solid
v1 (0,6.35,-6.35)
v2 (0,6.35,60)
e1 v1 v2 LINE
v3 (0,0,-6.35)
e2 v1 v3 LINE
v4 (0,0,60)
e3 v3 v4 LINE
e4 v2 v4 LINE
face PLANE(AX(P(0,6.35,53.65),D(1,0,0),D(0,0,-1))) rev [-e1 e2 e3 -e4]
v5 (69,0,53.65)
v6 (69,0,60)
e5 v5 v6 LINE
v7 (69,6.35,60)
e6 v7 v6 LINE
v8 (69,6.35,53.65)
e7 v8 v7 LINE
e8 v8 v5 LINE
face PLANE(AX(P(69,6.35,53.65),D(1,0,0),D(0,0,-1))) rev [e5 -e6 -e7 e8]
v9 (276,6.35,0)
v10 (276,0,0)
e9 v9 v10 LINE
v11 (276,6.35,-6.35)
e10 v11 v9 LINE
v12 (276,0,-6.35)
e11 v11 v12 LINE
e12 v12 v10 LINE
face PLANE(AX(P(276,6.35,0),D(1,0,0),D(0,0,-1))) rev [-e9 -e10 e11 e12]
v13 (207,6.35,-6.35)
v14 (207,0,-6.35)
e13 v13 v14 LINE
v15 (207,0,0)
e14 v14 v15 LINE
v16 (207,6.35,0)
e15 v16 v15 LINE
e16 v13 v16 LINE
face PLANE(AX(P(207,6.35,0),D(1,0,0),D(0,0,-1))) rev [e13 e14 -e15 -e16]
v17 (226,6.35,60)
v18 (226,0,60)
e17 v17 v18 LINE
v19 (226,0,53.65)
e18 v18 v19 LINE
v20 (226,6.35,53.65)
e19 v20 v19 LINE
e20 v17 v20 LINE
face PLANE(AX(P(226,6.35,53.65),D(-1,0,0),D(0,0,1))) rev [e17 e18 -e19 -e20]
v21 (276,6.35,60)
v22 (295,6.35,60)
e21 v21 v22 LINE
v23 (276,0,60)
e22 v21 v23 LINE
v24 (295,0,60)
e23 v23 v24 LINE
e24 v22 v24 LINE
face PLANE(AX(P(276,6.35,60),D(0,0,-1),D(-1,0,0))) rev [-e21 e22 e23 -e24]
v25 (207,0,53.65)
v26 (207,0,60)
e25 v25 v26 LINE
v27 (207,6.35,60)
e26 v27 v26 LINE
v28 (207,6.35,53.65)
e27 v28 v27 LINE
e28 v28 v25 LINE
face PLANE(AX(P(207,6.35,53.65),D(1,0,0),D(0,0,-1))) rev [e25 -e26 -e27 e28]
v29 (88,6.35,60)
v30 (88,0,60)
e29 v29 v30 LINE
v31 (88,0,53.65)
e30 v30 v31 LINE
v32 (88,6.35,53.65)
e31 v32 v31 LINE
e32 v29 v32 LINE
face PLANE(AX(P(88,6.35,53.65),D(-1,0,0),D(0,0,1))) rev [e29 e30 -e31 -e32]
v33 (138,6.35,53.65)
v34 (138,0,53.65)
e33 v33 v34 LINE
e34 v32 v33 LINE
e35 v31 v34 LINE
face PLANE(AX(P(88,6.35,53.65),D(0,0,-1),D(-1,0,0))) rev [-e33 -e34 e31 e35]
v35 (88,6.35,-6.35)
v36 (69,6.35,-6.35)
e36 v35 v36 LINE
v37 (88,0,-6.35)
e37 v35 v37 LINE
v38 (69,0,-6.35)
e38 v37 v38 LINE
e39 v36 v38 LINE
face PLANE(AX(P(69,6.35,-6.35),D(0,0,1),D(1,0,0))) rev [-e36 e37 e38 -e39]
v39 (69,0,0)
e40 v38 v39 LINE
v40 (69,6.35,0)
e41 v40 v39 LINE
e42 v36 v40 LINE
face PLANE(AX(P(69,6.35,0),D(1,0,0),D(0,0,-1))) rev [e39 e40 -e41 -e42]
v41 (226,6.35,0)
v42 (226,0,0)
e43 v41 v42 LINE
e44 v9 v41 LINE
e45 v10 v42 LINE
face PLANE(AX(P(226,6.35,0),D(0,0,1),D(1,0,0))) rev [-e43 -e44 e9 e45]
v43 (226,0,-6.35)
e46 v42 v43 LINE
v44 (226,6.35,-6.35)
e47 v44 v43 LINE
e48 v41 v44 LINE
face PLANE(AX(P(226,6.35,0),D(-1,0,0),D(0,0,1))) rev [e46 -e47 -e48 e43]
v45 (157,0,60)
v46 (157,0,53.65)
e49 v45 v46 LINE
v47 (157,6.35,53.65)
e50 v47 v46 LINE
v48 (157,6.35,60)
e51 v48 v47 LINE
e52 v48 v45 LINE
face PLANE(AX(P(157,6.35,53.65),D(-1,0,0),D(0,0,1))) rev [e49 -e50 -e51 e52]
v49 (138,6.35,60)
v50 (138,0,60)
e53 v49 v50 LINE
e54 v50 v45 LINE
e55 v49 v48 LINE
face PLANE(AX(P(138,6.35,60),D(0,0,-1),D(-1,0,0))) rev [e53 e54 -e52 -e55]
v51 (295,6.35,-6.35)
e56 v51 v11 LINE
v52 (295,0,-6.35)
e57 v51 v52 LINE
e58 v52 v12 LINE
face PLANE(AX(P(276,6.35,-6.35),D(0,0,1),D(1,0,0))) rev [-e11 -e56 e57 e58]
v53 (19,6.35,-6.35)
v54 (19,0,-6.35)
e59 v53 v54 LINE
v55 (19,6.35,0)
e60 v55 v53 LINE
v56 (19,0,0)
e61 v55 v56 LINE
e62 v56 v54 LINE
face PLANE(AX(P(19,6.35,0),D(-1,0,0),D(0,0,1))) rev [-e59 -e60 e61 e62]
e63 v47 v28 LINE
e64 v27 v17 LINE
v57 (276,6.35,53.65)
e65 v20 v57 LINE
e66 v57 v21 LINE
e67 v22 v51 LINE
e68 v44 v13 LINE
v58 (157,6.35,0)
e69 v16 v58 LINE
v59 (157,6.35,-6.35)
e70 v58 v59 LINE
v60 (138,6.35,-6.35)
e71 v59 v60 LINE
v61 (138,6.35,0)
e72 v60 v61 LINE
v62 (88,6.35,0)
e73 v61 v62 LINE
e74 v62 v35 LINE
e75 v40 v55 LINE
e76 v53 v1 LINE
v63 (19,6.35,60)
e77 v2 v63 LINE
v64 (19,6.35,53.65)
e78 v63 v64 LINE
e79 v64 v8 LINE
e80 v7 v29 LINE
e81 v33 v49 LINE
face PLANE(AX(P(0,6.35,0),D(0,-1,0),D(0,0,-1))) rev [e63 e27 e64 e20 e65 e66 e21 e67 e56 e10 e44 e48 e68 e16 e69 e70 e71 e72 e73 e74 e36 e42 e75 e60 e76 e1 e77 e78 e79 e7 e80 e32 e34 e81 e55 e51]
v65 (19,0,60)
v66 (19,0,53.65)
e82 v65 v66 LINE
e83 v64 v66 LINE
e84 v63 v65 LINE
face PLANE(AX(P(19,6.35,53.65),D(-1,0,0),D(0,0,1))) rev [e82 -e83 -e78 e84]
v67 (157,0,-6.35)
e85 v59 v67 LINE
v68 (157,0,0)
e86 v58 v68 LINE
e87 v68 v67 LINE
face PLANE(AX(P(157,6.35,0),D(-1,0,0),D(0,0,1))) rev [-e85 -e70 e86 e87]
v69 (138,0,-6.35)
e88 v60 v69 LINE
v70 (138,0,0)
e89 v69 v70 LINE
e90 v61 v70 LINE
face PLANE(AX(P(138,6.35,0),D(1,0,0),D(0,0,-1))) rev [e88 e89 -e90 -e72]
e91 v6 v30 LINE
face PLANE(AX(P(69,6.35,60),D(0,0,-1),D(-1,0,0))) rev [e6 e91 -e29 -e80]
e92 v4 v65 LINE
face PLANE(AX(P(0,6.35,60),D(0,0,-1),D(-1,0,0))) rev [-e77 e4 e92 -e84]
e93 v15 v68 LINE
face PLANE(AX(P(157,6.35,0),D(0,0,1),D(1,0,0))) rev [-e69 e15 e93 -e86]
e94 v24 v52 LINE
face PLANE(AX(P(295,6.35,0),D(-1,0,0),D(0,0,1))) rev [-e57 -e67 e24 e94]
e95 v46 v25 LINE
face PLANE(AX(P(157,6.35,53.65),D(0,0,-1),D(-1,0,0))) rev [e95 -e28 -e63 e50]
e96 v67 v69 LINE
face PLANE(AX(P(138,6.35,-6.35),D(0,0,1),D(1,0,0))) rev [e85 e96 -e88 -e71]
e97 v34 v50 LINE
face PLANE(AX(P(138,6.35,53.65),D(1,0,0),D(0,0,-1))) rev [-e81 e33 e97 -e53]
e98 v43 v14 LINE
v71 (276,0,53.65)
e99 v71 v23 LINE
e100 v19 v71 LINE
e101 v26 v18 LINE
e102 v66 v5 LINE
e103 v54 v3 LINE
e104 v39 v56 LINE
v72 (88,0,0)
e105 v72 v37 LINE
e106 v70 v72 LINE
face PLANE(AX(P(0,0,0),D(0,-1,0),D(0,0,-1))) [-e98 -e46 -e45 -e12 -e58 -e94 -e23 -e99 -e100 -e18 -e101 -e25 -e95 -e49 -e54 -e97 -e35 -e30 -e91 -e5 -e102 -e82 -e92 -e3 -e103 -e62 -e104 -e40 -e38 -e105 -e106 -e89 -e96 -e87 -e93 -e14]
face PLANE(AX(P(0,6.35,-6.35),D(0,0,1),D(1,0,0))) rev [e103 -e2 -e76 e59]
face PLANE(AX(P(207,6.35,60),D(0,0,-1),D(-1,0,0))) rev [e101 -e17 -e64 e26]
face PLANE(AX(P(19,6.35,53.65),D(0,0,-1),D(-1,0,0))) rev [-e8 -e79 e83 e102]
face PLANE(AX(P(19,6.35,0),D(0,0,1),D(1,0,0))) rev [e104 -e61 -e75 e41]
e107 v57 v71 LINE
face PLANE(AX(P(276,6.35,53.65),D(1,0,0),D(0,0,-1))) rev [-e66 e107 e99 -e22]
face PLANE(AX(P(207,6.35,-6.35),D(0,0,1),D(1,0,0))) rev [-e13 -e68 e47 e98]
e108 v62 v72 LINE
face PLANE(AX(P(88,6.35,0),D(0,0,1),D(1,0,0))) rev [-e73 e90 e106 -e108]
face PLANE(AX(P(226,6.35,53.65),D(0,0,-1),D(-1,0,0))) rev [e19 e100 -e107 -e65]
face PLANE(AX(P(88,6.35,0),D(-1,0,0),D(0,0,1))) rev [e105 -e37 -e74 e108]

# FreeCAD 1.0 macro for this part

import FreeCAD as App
import Part
import Sketcher

V = App.Vector

doc = App.newDocument("Part")
body = doc.addObject("PartDesign::Body", "Body")

# Sketch on XZ plane
sketch1 = body.newObject("Sketcher::SketchObject", "Sketch")
sketch1.AttachmentSupport = (doc.getObject("XZ_Plane"), [""])
sketch1.MapMode = "FlatFace"
sketch1.addGeometry([
    Part.LineSegment(V(69, 54, 0), V(69, 60, 0)),  # 0
    Part.LineSegment(V(69, 60, 0), V(88, 60, 0)),  # 1
    Part.LineSegment(V(88, 60, 0), V(88, 54, 0)),  # 2
    Part.LineSegment(V(88, 54, 0), V(138, 54, 0)),  # 3
    Part.LineSegment(V(138, 54, 0), V(138, 60, 0)),  # 4
    Part.LineSegment(V(138, 60, 0), V(157, 60, 0)),  # 5
    Part.LineSegment(V(157, 60, 0), V(157, 54, 0)),  # 6
    Part.LineSegment(V(157, 54, 0), V(207, 54, 0)),  # 7
    Part.LineSegment(V(207, 54, 0), V(207, 60, 0)),  # 8
    Part.LineSegment(V(207, 60, 0), V(226, 60, 0)),  # 9
    Part.LineSegment(V(226, 60, 0), V(226, 54, 0)),  # 10
    Part.LineSegment(V(226, 54, 0), V(276, 54, 0)),  # 11
    Part.LineSegment(V(276, 54, 0), V(276, 60, 0)),  # 12
    Part.LineSegment(V(276, 60, 0), V(295, 60, 0)),  # 13
    Part.LineSegment(V(295, 60, 0), V(295, -6, 0)),  # 14
    Part.LineSegment(V(295, -6, 0), V(276, -6, 0)),  # 15
    Part.LineSegment(V(276, -6, 0), V(276, 0, 0)),  # 16
    Part.LineSegment(V(276, 0, 0), V(226, 0, 0)),  # 17
    Part.LineSegment(V(226, 0, 0), V(226, -6, 0)),  # 18
    Part.LineSegment(V(226, -6, 0), V(207, -6, 0)),  # 19
    Part.LineSegment(V(207, -6, 0), V(207, 0, 0)),  # 20
    Part.LineSegment(V(207, 0, 0), V(157, 0, 0)),  # 21
    Part.LineSegment(V(157, 0, 0), V(157, -6, 0)),  # 22
    Part.LineSegment(V(157, -6, 0), V(138, -6, 0)),  # 23
    Part.LineSegment(V(138, -6, 0), V(138, 0, 0)),  # 24
    Part.LineSegment(V(138, 0, 0), V(88, 0, 0)),  # 25
    Part.LineSegment(V(88, 0, 0), V(88, -6, 0)),  # 26
    Part.LineSegment(V(88, -6, 0), V(69, -6, 0)),  # 27
    Part.LineSegment(V(69, -6, 0), V(69, 0, 0)),  # 28
    Part.LineSegment(V(69, 0, 0), V(19, 0, 0)),  # 29
    Part.LineSegment(V(19, 0, 0), V(19, -6, 0)),  # 30
    Part.LineSegment(V(19, -6, 0), V(0, -6, 0)),  # 31
    Part.LineSegment(V(0, -6, 0), V(0, 60, 0)),  # 32
    Part.LineSegment(V(0, 60, 0), V(19, 60, 0)),  # 33
    Part.LineSegment(V(19, 60, 0), V(19, 54, 0)),  # 34
    Part.LineSegment(V(19, 54, 0), V(69, 54, 0)),  # 35
], False)
sketch1.addConstraint([
    Sketcher.Constraint("Coincident", 0, 2, 1, 1),
    Sketcher.Constraint("Coincident", 1, 2, 2, 1),
    Sketcher.Constraint("Coincident", 2, 2, 3, 1),
    Sketcher.Constraint("Coincident", 3, 2, 4, 1),
    Sketcher.Constraint("Coincident", 4, 2, 5, 1),
    Sketcher.Constraint("Coincident", 5, 2, 6, 1),
    Sketcher.Constraint("Coincident", 6, 2, 7, 1),
    Sketcher.Constraint("Coincident", 7, 2, 8, 1),
    Sketcher.Constraint("Coincident", 8, 2, 9, 1),
    Sketcher.Constraint("Coincident", 9, 2, 10, 1),
    Sketcher.Constraint("Coincident", 10, 2, 11, 1),
    Sketcher.Constraint("Coincident", 11, 2, 12, 1),
    Sketcher.Constraint("Coincident", 12, 2, 13, 1),
    Sketcher.Constraint("Coincident", 13, 2, 14, 1),
    Sketcher.Constraint("Coincident", 14, 2, 15, 1),
    Sketcher.Constraint("Coincident", 15, 2, 16, 1),
    Sketcher.Constraint("Coincident", 16, 2, 17, 1),
    Sketcher.Constraint("Coincident", 17, 2, 18, 1),
    Sketcher.Constraint("Coincident", 18, 2, 19, 1),
    Sketcher.Constraint("Coincident", 19, 2, 20, 1),
    Sketcher.Constraint("Coincident", 20, 2, 21, 1),
    Sketcher.Constraint("Coincident", 21, 2, 22, 1),
    Sketcher.Constraint("Coincident", 22, 2, 23, 1),
    Sketcher.Constraint("Coincident", 23, 2, 24, 1),
    Sketcher.Constraint("Coincident", 24, 2, 25, 1),
    Sketcher.Constraint("Coincident", 25, 2, 26, 1),
    Sketcher.Constraint("Coincident", 26, 2, 27, 1),
    Sketcher.Constraint("Coincident", 27, 2, 28, 1),
    Sketcher.Constraint("Coincident", 28, 2, 29, 1),
    Sketcher.Constraint("Coincident", 29, 2, 30, 1),
    Sketcher.Constraint("Coincident", 30, 2, 31, 1),
    Sketcher.Constraint("Coincident", 31, 2, 32, 1),
    Sketcher.Constraint("Coincident", 32, 2, 33, 1),
    Sketcher.Constraint("Coincident", 33, 2, 34, 1),
    Sketcher.Constraint("Coincident", 34, 2, 35, 1),
    Sketcher.Constraint("Coincident", 35, 2, 0, 1),
    Sketcher.Constraint("Vertical", 0),
    Sketcher.Constraint("Horizontal", 1),
    Sketcher.Constraint("Vertical", 2),
    Sketcher.Constraint("Horizontal", 3),
    Sketcher.Constraint("Vertical", 4),
    Sketcher.Constraint("Horizontal", 5),
    Sketcher.Constraint("Vertical", 6),
    Sketcher.Constraint("Horizontal", 7),
    Sketcher.Constraint("Vertical", 8),
    Sketcher.Constraint("Horizontal", 9),
    Sketcher.Constraint("Vertical", 10),
    Sketcher.Constraint("Horizontal", 11),
    Sketcher.Constraint("Vertical", 12),
    Sketcher.Constraint("Horizontal", 13),
    Sketcher.Constraint("Vertical", 14),
    Sketcher.Constraint("Horizontal", 15),
    Sketcher.Constraint("Vertical", 16),
    Sketcher.Constraint("Horizontal", 17),
    Sketcher.Constraint("Vertical", 18),
    Sketcher.Constraint("Horizontal", 19),
    Sketcher.Constraint("Vertical", 20),
    Sketcher.Constraint("Horizontal", 21),
    Sketcher.Constraint("Vertical", 22),
    Sketcher.Constraint("Horizontal", 23),
    Sketcher.Constraint("Vertical", 24),
    Sketcher.Constraint("Horizontal", 25),
    Sketcher.Constraint("Vertical", 26),
    Sketcher.Constraint("Horizontal", 27),
    Sketcher.Constraint("Vertical", 28),
    Sketcher.Constraint("Horizontal", 29),
    Sketcher.Constraint("Vertical", 30),
    Sketcher.Constraint("Horizontal", 31),
    Sketcher.Constraint("Vertical", 32),
    Sketcher.Constraint("Horizontal", 33),
    Sketcher.Constraint("Vertical", 34),
    Sketcher.Constraint("Horizontal", 35),
    Sketcher.Constraint("PointOnObject", 16, 2, -1),
    Sketcher.Constraint("PointOnObject", 20, 2, -1),
    Sketcher.Constraint("PointOnObject", 24, 2, -1),
    Sketcher.Constraint("PointOnObject", 28, 2, -1),
    Sketcher.Constraint("PointOnObject", 31, 2, -2),
    Sketcher.Constraint("Horizontal", 1, 2, 4, 2),
    Sketcher.Constraint("Horizontal", 3, 2, 6, 2),
    Sketcher.Constraint("Horizontal", 5, 2, 8, 2),
    Sketcher.Constraint("Horizontal", 7, 2, 10, 2),
    Sketcher.Constraint("Horizontal", 9, 2, 12, 2),
    Sketcher.Constraint("Horizontal", 15, 2, 18, 2),
    Sketcher.Constraint("Horizontal", 19, 2, 22, 2),
    Sketcher.Constraint("Horizontal", 23, 2, 26, 2),
    Sketcher.Constraint("Horizontal", 27, 2, 30, 2),
    Sketcher.Constraint("Horizontal", 13, 2, 32, 2),
    Sketcher.Constraint("Horizontal", 11, 2, 34, 2),
    Sketcher.Constraint("Vertical", 12, 2, 15, 2),
    Sketcher.Constraint("Vertical", 10, 2, 17, 2),
    Sketcher.Constraint("Vertical", 8, 2, 19, 2),
    Sketcher.Constraint("Vertical", 6, 2, 21, 2),
    Sketcher.Constraint("Vertical", 4, 2, 23, 2),
    Sketcher.Constraint("Vertical", 2, 2, 25, 2),
    Sketcher.Constraint("Vertical", 0, 2, 27, 2),
    Sketcher.Constraint("Vertical", 30, 2, 33, 2),
    Sketcher.Constraint("Equal", 1, 5),
    Sketcher.Constraint("Equal", 3, 7),
    Sketcher.Constraint("Equal", 5, 9),
    Sketcher.Constraint("Equal", 7, 11),
    Sketcher.Constraint("Equal", 9, 13),
    Sketcher.Constraint("Equal", 25, 29),
    Sketcher.Constraint("Equal", 27, 31),
    Sketcher.Constraint("Equal", 12, 16),
    Sketcher.Constraint("DistanceX", 1, 1, 1, 2, 19.0),
    Sketcher.Constraint("DistanceX", 3, 1, 3, 2, 50.0),
    Sketcher.Constraint("DistanceY", -1, 1, 0, 2, 60.0),
    Sketcher.Constraint("DistanceY", 0, 1, 0, 2, 6.35),
])
pad1 = body.newObject("PartDesign::Pad", "Pad")
pad1.Profile = sketch1
pad1.Length = 6.35
pad1.Reversed = True

doc.recompute()
